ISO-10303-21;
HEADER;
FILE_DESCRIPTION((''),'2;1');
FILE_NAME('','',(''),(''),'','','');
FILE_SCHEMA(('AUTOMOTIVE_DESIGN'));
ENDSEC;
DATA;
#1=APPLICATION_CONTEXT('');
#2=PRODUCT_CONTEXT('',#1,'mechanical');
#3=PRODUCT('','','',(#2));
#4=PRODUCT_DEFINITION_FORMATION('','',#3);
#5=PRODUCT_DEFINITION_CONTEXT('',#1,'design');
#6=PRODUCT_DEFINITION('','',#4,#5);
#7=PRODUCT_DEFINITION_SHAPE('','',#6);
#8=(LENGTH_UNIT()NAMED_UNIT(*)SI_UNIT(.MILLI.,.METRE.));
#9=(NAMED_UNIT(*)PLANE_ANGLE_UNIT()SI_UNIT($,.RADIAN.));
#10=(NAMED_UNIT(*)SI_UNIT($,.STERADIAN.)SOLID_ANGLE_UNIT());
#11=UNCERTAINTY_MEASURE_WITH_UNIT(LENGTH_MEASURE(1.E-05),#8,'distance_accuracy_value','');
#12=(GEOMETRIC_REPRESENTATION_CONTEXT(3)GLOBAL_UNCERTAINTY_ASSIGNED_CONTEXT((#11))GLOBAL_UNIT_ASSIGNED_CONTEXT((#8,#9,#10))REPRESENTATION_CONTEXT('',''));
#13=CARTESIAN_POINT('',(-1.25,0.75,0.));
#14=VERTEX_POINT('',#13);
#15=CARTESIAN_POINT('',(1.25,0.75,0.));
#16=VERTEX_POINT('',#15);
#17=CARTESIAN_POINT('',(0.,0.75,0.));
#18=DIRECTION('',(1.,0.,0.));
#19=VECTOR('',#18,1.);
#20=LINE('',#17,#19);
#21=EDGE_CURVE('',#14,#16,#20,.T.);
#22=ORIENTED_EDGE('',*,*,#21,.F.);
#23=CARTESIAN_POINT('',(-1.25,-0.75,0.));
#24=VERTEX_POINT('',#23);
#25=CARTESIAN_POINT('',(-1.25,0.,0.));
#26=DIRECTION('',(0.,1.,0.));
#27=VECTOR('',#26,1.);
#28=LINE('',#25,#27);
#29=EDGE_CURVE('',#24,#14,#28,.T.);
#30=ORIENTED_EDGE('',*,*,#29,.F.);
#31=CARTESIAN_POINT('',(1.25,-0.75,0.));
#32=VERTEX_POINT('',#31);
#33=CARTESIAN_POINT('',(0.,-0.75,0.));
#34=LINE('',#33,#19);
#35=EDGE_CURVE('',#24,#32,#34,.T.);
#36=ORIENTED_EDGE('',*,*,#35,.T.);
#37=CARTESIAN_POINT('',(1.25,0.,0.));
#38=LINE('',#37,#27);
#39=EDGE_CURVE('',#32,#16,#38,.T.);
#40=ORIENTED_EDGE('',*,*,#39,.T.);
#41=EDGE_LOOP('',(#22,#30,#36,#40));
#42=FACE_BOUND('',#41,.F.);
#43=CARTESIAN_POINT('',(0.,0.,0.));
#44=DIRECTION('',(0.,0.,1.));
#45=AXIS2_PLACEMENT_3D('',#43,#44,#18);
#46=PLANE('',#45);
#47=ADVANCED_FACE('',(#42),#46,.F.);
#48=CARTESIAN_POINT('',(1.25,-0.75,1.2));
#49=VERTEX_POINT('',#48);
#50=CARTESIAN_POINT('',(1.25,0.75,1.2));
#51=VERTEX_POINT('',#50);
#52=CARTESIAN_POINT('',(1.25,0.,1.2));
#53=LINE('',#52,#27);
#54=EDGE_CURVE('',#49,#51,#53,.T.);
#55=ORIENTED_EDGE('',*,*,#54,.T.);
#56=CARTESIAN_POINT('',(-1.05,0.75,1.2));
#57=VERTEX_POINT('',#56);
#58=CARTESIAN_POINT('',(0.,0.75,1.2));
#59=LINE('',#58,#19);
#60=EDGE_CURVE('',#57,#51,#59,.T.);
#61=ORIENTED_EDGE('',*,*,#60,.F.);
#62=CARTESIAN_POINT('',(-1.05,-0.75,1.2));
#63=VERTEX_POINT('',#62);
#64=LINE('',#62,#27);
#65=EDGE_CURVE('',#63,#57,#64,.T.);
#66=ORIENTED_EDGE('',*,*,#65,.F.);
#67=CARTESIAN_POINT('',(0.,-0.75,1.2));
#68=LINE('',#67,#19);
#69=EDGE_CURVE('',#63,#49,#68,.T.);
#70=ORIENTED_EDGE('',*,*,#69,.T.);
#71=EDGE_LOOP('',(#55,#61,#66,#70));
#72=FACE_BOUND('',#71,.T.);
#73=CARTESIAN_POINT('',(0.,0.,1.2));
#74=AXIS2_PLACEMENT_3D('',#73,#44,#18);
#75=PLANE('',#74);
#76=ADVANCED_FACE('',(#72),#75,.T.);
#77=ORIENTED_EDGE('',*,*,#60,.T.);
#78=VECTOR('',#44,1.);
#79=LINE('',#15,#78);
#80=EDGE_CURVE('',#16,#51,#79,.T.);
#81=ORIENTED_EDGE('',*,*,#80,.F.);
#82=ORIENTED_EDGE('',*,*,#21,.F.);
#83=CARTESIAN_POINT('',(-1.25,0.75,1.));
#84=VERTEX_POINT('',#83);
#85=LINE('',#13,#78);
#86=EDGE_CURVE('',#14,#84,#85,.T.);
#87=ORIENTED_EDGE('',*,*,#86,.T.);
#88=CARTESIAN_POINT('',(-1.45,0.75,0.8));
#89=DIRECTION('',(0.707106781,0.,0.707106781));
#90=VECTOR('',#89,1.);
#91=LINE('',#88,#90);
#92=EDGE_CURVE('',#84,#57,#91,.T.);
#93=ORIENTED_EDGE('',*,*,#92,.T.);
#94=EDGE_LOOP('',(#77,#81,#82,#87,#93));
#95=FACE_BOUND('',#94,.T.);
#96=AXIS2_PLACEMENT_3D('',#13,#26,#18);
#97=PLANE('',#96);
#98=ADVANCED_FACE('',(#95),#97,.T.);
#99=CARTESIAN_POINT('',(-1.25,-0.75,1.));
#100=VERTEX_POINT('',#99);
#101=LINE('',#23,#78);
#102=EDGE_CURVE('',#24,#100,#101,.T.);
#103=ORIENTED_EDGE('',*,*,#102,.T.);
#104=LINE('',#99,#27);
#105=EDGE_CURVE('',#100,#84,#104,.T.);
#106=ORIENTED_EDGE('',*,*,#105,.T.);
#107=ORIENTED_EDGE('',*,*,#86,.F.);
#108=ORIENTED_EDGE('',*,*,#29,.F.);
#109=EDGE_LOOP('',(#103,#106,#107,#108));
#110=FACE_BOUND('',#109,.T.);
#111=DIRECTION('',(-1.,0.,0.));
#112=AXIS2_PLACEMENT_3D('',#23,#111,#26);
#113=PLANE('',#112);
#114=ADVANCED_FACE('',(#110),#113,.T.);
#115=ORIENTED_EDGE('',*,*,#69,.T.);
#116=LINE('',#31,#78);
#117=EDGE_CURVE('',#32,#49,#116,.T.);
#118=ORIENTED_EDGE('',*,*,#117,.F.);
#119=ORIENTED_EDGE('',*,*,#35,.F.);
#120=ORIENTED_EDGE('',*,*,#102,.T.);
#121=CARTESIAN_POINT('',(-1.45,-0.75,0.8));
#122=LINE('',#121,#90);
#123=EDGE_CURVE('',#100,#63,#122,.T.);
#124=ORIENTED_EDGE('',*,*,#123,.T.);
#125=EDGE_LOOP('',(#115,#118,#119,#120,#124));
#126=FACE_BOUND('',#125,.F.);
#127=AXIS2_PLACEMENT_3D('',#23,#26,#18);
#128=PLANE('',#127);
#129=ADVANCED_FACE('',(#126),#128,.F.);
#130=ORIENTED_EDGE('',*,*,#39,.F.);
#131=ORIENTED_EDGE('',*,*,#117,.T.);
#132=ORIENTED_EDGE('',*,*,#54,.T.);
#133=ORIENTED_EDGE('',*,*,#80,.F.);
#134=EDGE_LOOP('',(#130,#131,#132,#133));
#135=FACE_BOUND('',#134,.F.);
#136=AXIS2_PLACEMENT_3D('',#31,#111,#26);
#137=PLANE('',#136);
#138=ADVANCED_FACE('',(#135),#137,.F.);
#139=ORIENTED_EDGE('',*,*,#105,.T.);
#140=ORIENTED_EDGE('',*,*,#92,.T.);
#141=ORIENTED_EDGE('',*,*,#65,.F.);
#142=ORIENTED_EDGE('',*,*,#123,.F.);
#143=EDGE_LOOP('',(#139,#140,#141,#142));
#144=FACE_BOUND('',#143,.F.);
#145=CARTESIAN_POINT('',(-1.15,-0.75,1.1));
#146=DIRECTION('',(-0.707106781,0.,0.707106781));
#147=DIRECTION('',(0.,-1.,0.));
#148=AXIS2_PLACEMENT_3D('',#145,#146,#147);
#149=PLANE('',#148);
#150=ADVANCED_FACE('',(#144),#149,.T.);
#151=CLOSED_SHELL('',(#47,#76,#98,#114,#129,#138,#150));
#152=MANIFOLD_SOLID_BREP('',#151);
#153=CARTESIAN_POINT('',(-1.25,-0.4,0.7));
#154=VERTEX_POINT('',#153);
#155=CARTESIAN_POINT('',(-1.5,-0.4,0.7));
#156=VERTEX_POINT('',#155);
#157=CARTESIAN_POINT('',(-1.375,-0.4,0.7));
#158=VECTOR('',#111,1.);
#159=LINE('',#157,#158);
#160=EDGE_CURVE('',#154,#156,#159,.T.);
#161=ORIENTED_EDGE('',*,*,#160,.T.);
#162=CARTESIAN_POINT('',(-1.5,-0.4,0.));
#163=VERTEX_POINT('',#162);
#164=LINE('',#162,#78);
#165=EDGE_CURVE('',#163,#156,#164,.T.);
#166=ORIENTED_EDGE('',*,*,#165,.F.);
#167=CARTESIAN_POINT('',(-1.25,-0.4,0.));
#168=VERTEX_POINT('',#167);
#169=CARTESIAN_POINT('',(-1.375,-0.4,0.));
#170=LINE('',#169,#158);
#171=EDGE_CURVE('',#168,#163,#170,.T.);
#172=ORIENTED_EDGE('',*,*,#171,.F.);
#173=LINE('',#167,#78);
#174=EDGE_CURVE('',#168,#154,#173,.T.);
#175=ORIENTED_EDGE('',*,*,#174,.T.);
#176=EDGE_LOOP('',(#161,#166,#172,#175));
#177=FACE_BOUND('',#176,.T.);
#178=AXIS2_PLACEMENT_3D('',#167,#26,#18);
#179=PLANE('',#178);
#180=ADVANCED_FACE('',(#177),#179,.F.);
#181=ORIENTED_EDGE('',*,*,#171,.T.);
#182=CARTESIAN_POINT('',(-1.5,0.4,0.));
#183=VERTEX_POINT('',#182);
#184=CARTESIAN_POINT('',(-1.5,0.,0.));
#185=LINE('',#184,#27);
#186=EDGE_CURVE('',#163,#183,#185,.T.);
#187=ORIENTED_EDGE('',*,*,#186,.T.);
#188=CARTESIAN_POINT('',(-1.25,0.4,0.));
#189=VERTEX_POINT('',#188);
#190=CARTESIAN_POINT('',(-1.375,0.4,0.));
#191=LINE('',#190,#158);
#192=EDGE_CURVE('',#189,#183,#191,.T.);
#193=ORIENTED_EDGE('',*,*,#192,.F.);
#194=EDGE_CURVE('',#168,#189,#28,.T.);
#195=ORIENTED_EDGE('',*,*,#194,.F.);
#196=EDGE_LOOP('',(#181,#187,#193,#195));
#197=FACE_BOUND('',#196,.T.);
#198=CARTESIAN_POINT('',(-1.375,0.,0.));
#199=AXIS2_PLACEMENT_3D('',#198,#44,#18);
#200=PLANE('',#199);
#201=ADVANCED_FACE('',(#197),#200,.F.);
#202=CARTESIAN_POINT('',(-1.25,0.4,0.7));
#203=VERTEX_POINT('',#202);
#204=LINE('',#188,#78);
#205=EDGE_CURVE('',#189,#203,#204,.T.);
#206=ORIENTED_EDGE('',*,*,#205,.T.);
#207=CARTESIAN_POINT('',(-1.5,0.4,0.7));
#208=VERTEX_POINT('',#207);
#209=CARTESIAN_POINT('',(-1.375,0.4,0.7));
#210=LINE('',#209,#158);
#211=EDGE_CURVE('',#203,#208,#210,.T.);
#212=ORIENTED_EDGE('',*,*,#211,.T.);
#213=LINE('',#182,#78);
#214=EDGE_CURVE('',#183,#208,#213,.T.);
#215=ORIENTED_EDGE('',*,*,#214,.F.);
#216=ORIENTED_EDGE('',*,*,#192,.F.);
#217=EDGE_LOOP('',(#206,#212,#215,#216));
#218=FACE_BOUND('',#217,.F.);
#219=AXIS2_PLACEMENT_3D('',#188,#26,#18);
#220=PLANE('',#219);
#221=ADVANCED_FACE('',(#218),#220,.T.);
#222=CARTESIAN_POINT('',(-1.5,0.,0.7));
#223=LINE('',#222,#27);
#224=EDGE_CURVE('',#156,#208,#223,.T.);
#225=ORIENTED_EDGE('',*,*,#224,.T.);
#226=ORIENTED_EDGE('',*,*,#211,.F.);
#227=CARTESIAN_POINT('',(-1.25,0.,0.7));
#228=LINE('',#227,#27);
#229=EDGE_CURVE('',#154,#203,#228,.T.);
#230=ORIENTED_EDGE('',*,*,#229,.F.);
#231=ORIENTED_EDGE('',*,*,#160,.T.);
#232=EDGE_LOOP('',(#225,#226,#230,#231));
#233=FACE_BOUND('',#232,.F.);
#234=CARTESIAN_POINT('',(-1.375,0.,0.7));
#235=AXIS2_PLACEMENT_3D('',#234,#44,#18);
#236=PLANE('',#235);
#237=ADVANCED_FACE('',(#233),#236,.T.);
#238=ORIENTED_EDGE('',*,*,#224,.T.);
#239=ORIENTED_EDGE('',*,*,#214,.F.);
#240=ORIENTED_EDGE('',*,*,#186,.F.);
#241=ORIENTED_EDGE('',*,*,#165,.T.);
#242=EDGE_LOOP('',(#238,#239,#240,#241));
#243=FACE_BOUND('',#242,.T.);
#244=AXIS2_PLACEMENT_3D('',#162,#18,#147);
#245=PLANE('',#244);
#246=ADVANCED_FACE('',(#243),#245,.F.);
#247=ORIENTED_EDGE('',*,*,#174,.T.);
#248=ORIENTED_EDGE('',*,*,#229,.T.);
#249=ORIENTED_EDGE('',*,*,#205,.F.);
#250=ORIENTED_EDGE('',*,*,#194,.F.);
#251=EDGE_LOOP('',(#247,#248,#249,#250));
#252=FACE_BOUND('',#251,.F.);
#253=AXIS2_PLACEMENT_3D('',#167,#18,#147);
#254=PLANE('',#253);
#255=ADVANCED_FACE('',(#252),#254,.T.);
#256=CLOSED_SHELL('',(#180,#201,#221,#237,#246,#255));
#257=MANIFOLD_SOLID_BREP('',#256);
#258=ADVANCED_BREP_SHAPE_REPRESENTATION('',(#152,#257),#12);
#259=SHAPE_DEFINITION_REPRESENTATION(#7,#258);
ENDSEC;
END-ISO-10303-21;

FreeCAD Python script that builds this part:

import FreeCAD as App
import Part
import Sketcher
from FreeCAD import Vector
Q = App.Units.Quantity


def edges_at(feature, points):
    """Names of the edges that pass closest to the given points."""
    edges = feature.Shape.Edges
    near = lambda p: min(range(len(edges)), key=lambda i: edges[i].distToShape(Part.Vertex(*p))[0])
    return sorted({f"Edge{near(p) + 1}" for p in points})

doc = App.newDocument("Part")
body = doc.addObject("PartDesign::Body", "Body")

# Sketch on XY plane
sketch1 = doc.addObject("Sketcher::SketchObject", "Sketch")
body.addObject(sketch1)
sketch1.AttachmentSupport = (doc.XY_Plane, [""])
sketch1.MapMode = "FlatFace"
sketch1.addGeometry([
    Part.LineSegment(Vector(-1.2, 0.8, 0), Vector(-1.2, -0.8, 0)),
    Part.LineSegment(Vector(-1.2, -0.8, 0), Vector(1.2, -0.8, 0)),
    Part.LineSegment(Vector(1.2, -0.8, 0), Vector(1.2, 0.8, 0)),
    Part.LineSegment(Vector(1.2, 0.8, 0), Vector(-1.2, 0.8, 0)),
], False)
sketch1.addConstraint([
    Sketcher.Constraint("Coincident", 0, 2, 1, 1),
    Sketcher.Constraint("Coincident", 1, 2, 2, 1),
    Sketcher.Constraint("Coincident", 2, 2, 3, 1),
    Sketcher.Constraint("Coincident", 3, 2, 0, 1),
    Sketcher.Constraint("Vertical", 0),
    Sketcher.Constraint("Horizontal", 1),
    Sketcher.Constraint("Vertical", 2),
    Sketcher.Constraint("Horizontal", 3),
    Sketcher.Constraint("Symmetric", 0, 2, 2, 2, -1, 1),
    Sketcher.Constraint("DistanceX", 1, 1, 1, 2, Q("2.5 mm")),
    Sketcher.Constraint("DistanceY", 0, 2, 0, 1, Q("1.5 mm")),
])
pad1 = doc.addObject("PartDesign::Pad", "Pad")
body.addObject(pad1)
pad1.Profile = sketch1
pad1.Length = 1.2
doc.recompute()

chamfer = doc.addObject("PartDesign::Chamfer", "Chamfer")
body.addObject(chamfer)
chamfer.Base = (pad1, edges_at(pad1, [(-1.25, 0, 1.2)]))
chamfer.Size = 0.2
body2 = doc.addObject("PartDesign::Body", "Body001")

# Sketch on XY plane
sketch2 = doc.addObject("Sketcher::SketchObject", "Sketch001")
body2.addObject(sketch2)
sketch2.AttachmentSupport = (doc.getObject("XY_Plane001"), [""])
sketch2.MapMode = "FlatFace"
sketch2.addGeometry([
    Part.LineSegment(Vector(1.25, 0.4, 0), Vector(1.25, -0.4, 0)),
    Part.LineSegment(Vector(1.25, -0.4, 0), Vector(1.5, -0.4, 0)),
    Part.LineSegment(Vector(1.5, -0.4, 0), Vector(1.5, 0.4, 0)),
    Part.LineSegment(Vector(1.5, 0.4, 0), Vector(1.25, 0.4, 0)),
], False)
sketch2.addConstraint([
    Sketcher.Constraint("Coincident", 0, 2, 1, 1),
    Sketcher.Constraint("Coincident", 1, 2, 2, 1),
    Sketcher.Constraint("Coincident", 2, 2, 3, 1),
    Sketcher.Constraint("Coincident", 3, 2, 0, 1),
    Sketcher.Constraint("Vertical", 0),
    Sketcher.Constraint("Horizontal", 1),
    Sketcher.Constraint("Vertical", 2),
    Sketcher.Constraint("Horizontal", 3),
    Sketcher.Constraint("DistanceY", 0, 2, 0, 1, Q("0.8 mm")),
    Sketcher.Constraint("DistanceX", 1, 1, 1, 2, Q("0.25 mm")),
    Sketcher.Constraint("DistanceY", 0, 2, -1, 1, Q("0.4 mm")),
    Sketcher.Constraint("DistanceX", -1, 1, 1, 2, Q("1.5 mm")),
])
pad2 = doc.addObject("PartDesign::Pad", "Pad001")
body2.addObject(pad2)
pad2.Profile = sketch2
pad2.Length = 0.7
body3 = doc.addObject("PartDesign::Body", "Body002")
doc.recompute()

mirroring = doc.addObject("Part::Mirroring", "Mirroring")
mirroring.Source = body2
mirroring.Base = Vector(0, 0, 0)
mirroring.Normal = Vector(1, 0, 0)
body3.BaseFeature = mirroring
doc.recompute()
body2.Visibility = False
mirroring.Visibility = False

doc.recompute()
